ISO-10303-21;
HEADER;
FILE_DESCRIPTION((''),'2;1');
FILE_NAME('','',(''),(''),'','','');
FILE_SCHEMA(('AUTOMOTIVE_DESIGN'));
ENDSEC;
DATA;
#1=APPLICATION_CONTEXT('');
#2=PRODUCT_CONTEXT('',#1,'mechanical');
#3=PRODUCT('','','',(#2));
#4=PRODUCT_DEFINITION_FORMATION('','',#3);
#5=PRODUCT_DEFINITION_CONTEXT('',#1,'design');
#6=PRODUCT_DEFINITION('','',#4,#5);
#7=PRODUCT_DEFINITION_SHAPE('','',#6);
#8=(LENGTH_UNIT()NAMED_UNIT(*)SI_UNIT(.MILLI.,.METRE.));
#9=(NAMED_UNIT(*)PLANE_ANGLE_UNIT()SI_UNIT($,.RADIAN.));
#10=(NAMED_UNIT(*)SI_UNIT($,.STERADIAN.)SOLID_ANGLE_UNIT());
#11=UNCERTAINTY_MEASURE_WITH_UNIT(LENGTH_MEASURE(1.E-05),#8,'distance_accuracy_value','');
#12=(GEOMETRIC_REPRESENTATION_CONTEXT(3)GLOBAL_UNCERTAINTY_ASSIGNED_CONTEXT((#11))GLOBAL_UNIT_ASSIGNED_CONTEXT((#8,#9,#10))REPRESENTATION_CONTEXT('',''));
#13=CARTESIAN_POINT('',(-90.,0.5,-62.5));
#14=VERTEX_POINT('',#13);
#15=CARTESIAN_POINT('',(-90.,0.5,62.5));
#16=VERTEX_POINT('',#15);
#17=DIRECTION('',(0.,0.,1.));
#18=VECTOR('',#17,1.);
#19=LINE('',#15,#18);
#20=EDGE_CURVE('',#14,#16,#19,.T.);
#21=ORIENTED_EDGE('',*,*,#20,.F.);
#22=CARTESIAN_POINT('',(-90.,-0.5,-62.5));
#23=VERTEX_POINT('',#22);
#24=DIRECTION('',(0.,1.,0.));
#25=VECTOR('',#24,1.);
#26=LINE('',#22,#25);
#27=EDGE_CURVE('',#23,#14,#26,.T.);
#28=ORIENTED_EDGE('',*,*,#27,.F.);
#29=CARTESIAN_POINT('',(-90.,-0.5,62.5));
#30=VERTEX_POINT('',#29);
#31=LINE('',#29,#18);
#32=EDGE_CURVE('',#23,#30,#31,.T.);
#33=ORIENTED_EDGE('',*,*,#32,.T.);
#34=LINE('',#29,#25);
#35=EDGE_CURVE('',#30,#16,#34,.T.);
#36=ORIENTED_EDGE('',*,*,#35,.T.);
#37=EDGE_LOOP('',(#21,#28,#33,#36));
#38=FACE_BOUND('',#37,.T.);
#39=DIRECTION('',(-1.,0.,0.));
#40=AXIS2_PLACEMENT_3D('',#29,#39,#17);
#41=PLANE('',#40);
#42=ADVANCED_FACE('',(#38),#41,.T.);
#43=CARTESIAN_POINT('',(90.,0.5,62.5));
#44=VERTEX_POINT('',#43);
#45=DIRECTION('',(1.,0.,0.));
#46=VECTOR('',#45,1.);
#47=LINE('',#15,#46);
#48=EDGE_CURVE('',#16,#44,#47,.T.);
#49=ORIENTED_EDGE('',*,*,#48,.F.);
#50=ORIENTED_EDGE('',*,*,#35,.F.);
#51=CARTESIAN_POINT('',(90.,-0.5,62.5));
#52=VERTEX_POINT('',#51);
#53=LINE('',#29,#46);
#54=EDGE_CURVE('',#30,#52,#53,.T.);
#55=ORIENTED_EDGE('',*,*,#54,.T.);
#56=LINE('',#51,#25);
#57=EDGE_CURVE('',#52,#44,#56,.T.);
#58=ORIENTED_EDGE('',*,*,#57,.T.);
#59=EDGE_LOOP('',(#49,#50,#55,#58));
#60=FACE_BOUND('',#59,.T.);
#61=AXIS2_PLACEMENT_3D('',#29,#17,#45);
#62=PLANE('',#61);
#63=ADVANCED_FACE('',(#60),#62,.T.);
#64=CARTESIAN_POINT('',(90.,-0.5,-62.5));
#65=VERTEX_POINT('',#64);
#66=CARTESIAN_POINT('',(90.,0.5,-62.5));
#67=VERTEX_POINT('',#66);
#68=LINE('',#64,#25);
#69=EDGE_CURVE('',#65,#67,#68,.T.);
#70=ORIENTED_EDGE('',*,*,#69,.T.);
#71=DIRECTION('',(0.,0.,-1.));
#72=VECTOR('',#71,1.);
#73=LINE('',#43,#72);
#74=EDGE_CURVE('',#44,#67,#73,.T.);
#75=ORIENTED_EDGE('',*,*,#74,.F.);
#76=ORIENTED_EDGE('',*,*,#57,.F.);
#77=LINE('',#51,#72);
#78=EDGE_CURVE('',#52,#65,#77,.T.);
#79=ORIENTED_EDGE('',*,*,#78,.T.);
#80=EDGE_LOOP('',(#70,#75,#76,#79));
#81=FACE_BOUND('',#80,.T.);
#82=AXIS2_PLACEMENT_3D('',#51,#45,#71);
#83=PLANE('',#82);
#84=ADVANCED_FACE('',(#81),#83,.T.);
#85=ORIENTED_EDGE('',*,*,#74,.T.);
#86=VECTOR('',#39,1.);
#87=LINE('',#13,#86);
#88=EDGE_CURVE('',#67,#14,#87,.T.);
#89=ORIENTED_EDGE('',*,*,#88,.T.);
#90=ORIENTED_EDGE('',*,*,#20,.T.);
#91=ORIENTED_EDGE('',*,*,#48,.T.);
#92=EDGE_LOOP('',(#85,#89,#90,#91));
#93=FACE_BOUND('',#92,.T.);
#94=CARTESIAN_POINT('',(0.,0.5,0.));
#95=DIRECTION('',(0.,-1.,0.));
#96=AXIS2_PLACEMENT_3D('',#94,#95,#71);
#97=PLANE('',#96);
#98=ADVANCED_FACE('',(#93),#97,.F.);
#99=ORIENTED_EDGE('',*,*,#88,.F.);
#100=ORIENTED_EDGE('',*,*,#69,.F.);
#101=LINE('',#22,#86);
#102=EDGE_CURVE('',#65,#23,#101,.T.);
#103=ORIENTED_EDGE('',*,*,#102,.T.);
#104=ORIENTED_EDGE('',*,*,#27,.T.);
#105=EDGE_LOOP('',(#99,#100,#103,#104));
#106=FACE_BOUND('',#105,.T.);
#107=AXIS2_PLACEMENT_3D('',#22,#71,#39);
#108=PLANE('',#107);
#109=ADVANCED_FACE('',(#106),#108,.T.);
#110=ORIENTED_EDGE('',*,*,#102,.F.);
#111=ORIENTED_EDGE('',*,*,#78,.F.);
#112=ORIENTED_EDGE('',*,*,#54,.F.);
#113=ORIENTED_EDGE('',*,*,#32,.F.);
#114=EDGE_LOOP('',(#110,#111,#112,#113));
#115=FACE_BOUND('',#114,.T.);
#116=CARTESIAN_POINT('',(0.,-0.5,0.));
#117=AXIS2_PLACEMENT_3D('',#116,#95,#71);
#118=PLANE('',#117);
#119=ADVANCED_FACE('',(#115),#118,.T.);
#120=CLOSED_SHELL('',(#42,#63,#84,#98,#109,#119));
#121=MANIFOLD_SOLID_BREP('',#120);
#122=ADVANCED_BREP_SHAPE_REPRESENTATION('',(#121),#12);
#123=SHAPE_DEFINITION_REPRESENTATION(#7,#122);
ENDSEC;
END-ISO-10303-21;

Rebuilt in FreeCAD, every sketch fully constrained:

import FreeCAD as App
import Part
import Sketcher

V = App.Vector
Q = App.Units.Quantity

doc = App.newDocument("Part")
body = doc.addObject("PartDesign::Body", "Body")

# Sketch on XZ plane
sketch1 = doc.addObject("Sketcher::SketchObject", "Sketch")
body.addObject(sketch1)
sketch1.AttachmentSupport = (doc.XZ_Plane, [""])
sketch1.MapMode = "FlatFace"
sketch1.addGeometry([
    Part.LineSegment(V(-90, -62, 0), V(-90, 62, 0)),
    Part.LineSegment(V(-90, 62, 0), V(90, 62, 0)),
    Part.LineSegment(V(90, 62, 0), V(90, -62, 0)),
    Part.LineSegment(V(90, -62, 0), V(-90, -62, 0)),
], False)
sketch1.addConstraint([
    Sketcher.Constraint("Coincident", 0, 2, 1, 1),
    Sketcher.Constraint("Coincident", 1, 2, 2, 1),
    Sketcher.Constraint("Coincident", 2, 2, 3, 1),
    Sketcher.Constraint("Coincident", 3, 2, 0, 1),
    Sketcher.Constraint("Vertical", 0),
    Sketcher.Constraint("Horizontal", 1),
    Sketcher.Constraint("Vertical", 2),
    Sketcher.Constraint("Horizontal", 3),
    Sketcher.Constraint("Symmetric", 0, 2, 2, 2, -1, 1),
    Sketcher.Constraint("DistanceX", 1, 1, 1, 2, Q("180 mm")),
    Sketcher.Constraint("DistanceY", 0, 1, 0, 2, Q("125 mm")),
])
pad1 = doc.addObject("PartDesign::Pad", "Pad")
body.addObject(pad1)
pad1.Profile = sketch1
pad1.Type = "TwoLengths"
pad1.Length = 0.5
pad1.Length2 = 0.5
pad1.Reversed = True

doc.recompute()
